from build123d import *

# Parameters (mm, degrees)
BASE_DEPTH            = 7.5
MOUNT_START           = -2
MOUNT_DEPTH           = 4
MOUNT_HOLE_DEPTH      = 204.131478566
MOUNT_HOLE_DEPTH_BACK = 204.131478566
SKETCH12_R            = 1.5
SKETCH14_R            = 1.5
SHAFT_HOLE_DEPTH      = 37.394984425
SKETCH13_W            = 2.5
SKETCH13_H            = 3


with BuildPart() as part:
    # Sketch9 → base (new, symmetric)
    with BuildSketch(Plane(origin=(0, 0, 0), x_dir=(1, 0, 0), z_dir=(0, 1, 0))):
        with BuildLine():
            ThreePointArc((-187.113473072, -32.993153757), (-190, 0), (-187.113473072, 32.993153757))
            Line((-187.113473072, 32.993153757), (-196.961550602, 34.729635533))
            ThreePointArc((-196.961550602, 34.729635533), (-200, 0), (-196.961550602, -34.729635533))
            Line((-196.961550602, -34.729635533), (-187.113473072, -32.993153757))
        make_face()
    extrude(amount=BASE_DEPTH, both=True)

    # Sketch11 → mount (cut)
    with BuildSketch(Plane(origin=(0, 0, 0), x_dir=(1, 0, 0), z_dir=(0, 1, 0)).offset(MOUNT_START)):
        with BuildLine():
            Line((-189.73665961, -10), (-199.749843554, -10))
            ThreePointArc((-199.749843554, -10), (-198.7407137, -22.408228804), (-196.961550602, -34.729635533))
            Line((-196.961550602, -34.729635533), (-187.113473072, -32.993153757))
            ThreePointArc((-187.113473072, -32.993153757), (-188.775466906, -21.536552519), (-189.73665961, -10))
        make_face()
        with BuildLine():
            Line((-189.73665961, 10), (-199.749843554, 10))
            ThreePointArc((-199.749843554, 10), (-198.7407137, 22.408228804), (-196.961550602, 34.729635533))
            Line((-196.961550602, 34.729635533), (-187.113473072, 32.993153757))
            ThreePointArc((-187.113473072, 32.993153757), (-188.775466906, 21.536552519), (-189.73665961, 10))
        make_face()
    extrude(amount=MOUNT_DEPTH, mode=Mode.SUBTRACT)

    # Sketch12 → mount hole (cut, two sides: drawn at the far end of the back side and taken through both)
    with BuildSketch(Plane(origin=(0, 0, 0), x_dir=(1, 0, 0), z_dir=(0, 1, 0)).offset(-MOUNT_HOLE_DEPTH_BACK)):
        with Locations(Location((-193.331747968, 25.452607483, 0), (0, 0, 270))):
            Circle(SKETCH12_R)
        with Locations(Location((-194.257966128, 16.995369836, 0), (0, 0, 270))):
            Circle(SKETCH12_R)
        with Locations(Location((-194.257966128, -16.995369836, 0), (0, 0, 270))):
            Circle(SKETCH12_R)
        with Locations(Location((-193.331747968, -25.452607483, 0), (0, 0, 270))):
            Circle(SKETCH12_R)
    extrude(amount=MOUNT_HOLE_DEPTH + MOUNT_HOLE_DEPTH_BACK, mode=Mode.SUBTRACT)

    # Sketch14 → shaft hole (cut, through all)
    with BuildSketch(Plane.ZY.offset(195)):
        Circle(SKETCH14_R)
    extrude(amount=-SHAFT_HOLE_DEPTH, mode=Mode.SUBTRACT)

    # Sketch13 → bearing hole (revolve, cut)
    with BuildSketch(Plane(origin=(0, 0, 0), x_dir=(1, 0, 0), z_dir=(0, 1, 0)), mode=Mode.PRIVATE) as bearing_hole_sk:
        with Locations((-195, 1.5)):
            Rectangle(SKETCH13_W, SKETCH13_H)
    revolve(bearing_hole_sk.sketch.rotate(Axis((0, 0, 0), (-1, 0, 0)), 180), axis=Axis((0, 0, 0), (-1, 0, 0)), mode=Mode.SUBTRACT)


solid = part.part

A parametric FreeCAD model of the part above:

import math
import FreeCAD as App
import Part
import Sketcher
from FreeCAD import Vector
Q = App.Units.Quantity


def add_polygon(sketch, points):
    """Adds a closed chain of lines whose ends are joined by coincident constraints."""
    first, n = sketch.GeometryCount, len(points)
    for a, b in zip(points, points[1:] + points[:1]):
        sketch.addGeometry(Part.LineSegment(App.Vector(*a, 0), App.Vector(*b, 0)), False)
    for i in range(n):
        sketch.addConstraint(Sketcher.Constraint("Coincident", first + i, 2, first + (i + 1) % n, 1))

doc = App.newDocument("Part")
body = doc.addObject("PartDesign::Body", "Body")

# Sketch on XZ plane
sketch1 = doc.addObject("Sketcher::SketchObject", "Sketch")
body.addObject(sketch1)
sketch1.AttachmentSupport = (doc.XZ_Plane, [""])
sketch1.MapMode = "FlatFace"
sketch1.addGeometry(Part.ArcOfCircle(Part.Circle(Vector(0, 0, 0), Vector(0, 0, 1), 190), math.radians(170), math.radians(190)), False)
sketch1.addGeometry(Part.LineSegment(Vector(-187, -33, 0), Vector(-197, -35, 0)), False)
sketch1.addGeometry(Part.ArcOfCircle(Part.Circle(Vector(0, 0, 0), Vector(0, 0, 1), 200), math.radians(170), math.radians(190)), False)
sketch1.addGeometry(Part.LineSegment(Vector(-197, 35, 0), Vector(-187, 33, 0)), False)
sketch1.addConstraint(Sketcher.Constraint("Coincident", 0, 2, 1, 1))
sketch1.addConstraint(Sketcher.Constraint("Coincident", 1, 2, 2, 2))
sketch1.addConstraint(Sketcher.Constraint("Coincident", 2, 1, 3, 1))
sketch1.addConstraint(Sketcher.Constraint("Coincident", 3, 2, 0, 1))
sketch1.addConstraint(Sketcher.Constraint("Coincident", 0, 3, -1, 1))
sketch1.addConstraint(Sketcher.Constraint("Coincident", 2, 3, -1, 1))
sketch1.addConstraint(Sketcher.Constraint("Vertical", 1, 2, 2, 1))
sketch1.addConstraint(Sketcher.Constraint("Vertical", 0, 2, 3, 2))
sketch1.addConstraint(Sketcher.Constraint("Radius", 0, Q("190 mm")))
sketch1.addConstraint(Sketcher.Constraint("Radius", 2, Q("200 mm")))
sketch1.addConstraint(Sketcher.Constraint("Angle", 1, Q("-170 deg")))
sketch1.addConstraint(Sketcher.Constraint("DistanceX", 1, 2, -1, 1, Q("196.961551 mm")))
pad1 = doc.addObject("PartDesign::Pad", "Pad")
body.addObject(pad1)
pad1.Profile = sketch1
pad1.Length = 15
pad1.Midplane = True

# Sketch on XZ plane
sketch2 = doc.addObject("Sketcher::SketchObject", "Sketch001")
body.addObject(sketch2)
sketch2.AttachmentSupport = (doc.XZ_Plane, [""])
sketch2.MapMode = "FlatFace"
sketch2.AttachmentOffset = App.Placement(Vector(0, 0, 2), App.Rotation())
sketch2.addGeometry(Part.LineSegment(Vector(-190, 10, 0), Vector(-200, 10, 0)), False)
sketch2.addGeometry(Part.ArcOfCircle(Part.Circle(Vector(0, 0, 0), Vector(0, 0, 1), 200), math.radians(170), math.radians(177.13)), False)
sketch2.addGeometry(Part.LineSegment(Vector(-197, 35, 0), Vector(-187, 33, 0)), False)
sketch2.addGeometry(Part.ArcOfCircle(Part.Circle(Vector(0, 0, 0), Vector(0, 0, 1), 190), math.radians(170), math.radians(176.98)), False)
sketch2.addGeometry(Part.LineSegment(Vector(-200, -10, 0), Vector(-190, -10, 0)), False)
sketch2.addGeometry(Part.ArcOfCircle(Part.Circle(Vector(0, 0, 0), Vector(0, 0, 1), 190), math.radians(-176.98), math.radians(-170)), False)
sketch2.addGeometry(Part.LineSegment(Vector(-187, -33, 0), Vector(-197, -35, 0)), False)
sketch2.addGeometry(Part.ArcOfCircle(Part.Circle(Vector(0, 0, 0), Vector(0, 0, 1), 200), math.radians(-177.13), math.radians(-170)), False)
sketch2.addConstraint(Sketcher.Constraint("Coincident", 0, 2, 1, 2))
sketch2.addConstraint(Sketcher.Constraint("Coincident", 1, 1, 2, 1))
sketch2.addConstraint(Sketcher.Constraint("Coincident", 2, 2, 3, 1))
sketch2.addConstraint(Sketcher.Constraint("Coincident", 3, 2, 0, 1))
sketch2.addConstraint(Sketcher.Constraint("Coincident", 4, 2, 5, 1))
sketch2.addConstraint(Sketcher.Constraint("Coincident", 5, 2, 6, 1))
sketch2.addConstraint(Sketcher.Constraint("Coincident", 6, 2, 7, 2))
sketch2.addConstraint(Sketcher.Constraint("Coincident", 7, 1, 4, 1))
sketch2.addConstraint(Sketcher.Constraint("Horizontal", 0))
sketch2.addConstraint(Sketcher.Constraint("Horizontal", 4))
sketch2.addConstraint(Sketcher.Constraint("Coincident", 1, 3, -1, 1))
sketch2.addConstraint(Sketcher.Constraint("Coincident", 3, 3, -1, 1))
sketch2.addConstraint(Sketcher.Constraint("Coincident", 5, 3, -1, 1))
sketch2.addConstraint(Sketcher.Constraint("Coincident", 7, 3, -1, 1))
sketch2.addConstraint(Sketcher.Constraint("Equal", 3, 5))
sketch2.addConstraint(Sketcher.Constraint("Equal", 1, 7))
sketch2.addConstraint(Sketcher.Constraint("Vertical", 3, 2, 4, 2))
sketch2.addConstraint(Sketcher.Constraint("Vertical", 2, 2, 5, 2))
sketch2.addConstraint(Sketcher.Constraint("Vertical", 1, 1, 6, 2))
sketch2.addConstraint(Sketcher.Constraint("Radius", 1, Q("200 mm")))
sketch2.addConstraint(Sketcher.Constraint("Radius", 3, Q("190 mm")))
sketch2.addConstraint(Sketcher.Constraint("Angle", 2, Q("-10 deg")))
sketch2.addConstraint(Sketcher.Constraint("DistanceY", -1, 1, 0, 2, Q("10 mm")))
sketch2.addConstraint(Sketcher.Constraint("DistanceX", 1, 1, -1, 1, Q("196.961551 mm")))
pocket1 = doc.addObject("PartDesign::Pocket", "Pocket")
body.addObject(pocket1)
pocket1.Profile = sketch2
pocket1.Length = 4

# Sketch on XZ plane
sketch3 = doc.addObject("Sketcher::SketchObject", "Sketch002")
body.addObject(sketch3)
sketch3.AttachmentSupport = (doc.XZ_Plane, [""])
sketch3.MapMode = "FlatFace"
sketch3.addGeometry(Part.Circle(Vector(-193.3, -25.5, 0), Vector(0, 0, 1), 1.5), False)
sketch3.addGeometry(Part.Circle(Vector(-194.3, -17, 0), Vector(0, 0, 1), 1.5), False)
sketch3.addGeometry(Part.Circle(Vector(-194.3, 17, 0), Vector(0, 0, 1), 1.5), False)
sketch3.addGeometry(Part.Circle(Vector(-193.3, 25.5, 0), Vector(0, 0, 1), 1.5), False)
sketch3.addConstraint(Sketcher.Constraint("Equal", 0, 1))
sketch3.addConstraint(Sketcher.Constraint("Equal", 1, 2))
sketch3.addConstraint(Sketcher.Constraint("Equal", 2, 3))
sketch3.addConstraint(Sketcher.Constraint("Symmetric", 1, 3, 2, 3, -1))
sketch3.addConstraint(Sketcher.Constraint("Symmetric", 0, 3, 3, 3, -1))
sketch3.addConstraint(Sketcher.Constraint("Diameter", 0, Q("3 mm")))
sketch3.addConstraint(Sketcher.Constraint("DistanceY", 1, 3, -1, 1, Q("16.99537 mm")))
sketch3.addConstraint(Sketcher.Constraint("DistanceX", 1, 3, 0, 3, Q("0.926218 mm")))
sketch3.addConstraint(Sketcher.Constraint("DistanceX", 0, 3, -1, 1, Q("193.331748 mm")))
sketch3.addConstraint(Sketcher.Constraint("DistanceY", 0, 3, -1, 1, Q("25.452607 mm")))
pocket2 = doc.addObject("PartDesign::Pocket", "Pocket001")
body.addObject(pocket2)
pocket2.Profile = sketch3
pocket2.Type = "ThroughAll"
pocket2.Midplane = True

# Sketch on YZ plane
sketch4 = doc.addObject("Sketcher::SketchObject", "Sketch003")
body.addObject(sketch4)
sketch4.AttachmentSupport = (doc.YZ_Plane, [""])
sketch4.MapMode = "FlatFace"
sketch4.AttachmentOffset = App.Placement(Vector(0, 0, -195), App.Rotation())
sketch4.addGeometry(Part.Circle(Vector(0, 0, 0), Vector(0, 0, 1), 1.5), False)
sketch4.addConstraint(Sketcher.Constraint("Coincident", 0, 3, -1, 1))
sketch4.addConstraint(Sketcher.Constraint("Diameter", 0, Q("3 mm")))
pocket3 = doc.addObject("PartDesign::Pocket", "Pocket002")
body.addObject(pocket3)
pocket3.Profile = sketch4
pocket3.Type = "ThroughAll"
pocket3.Reversed = True

# Sketch on XZ plane
sketch5 = doc.addObject("Sketcher::SketchObject", "Sketch004")
body.addObject(sketch5)
sketch5.AttachmentSupport = (doc.XZ_Plane, [""])
sketch5.MapMode = "FlatFace"
add_polygon(sketch5, [(-196.2, -3), (-196.2, 0), (-193.8, 0), (-193.8, -3)])  # lines 0-3
sketch5.addConstraint(Sketcher.Constraint("Vertical", 0))
sketch5.addConstraint(Sketcher.Constraint("Horizontal", 1))
sketch5.addConstraint(Sketcher.Constraint("Vertical", 2))
sketch5.addConstraint(Sketcher.Constraint("Horizontal", 3))
sketch5.addConstraint(Sketcher.Constraint("PointOnObject", 0, 2, -1))
sketch5.addConstraint(Sketcher.Constraint("DistanceY", 0, 1, 0, 2, Q("3 mm")))
sketch5.addConstraint(Sketcher.Constraint("DistanceX", 1, 1, 1, 2, Q("2.5 mm")))
sketch5.addConstraint(Sketcher.Constraint("DistanceX", 0, 2, -1, 1, Q("196.25 mm")))
groove = doc.addObject("PartDesign::Groove", "Groove")
body.addObject(groove)
groove.Profile = sketch5
groove.ReferenceAxis = (sketch5, ["H_Axis"])
groove.Angle = 360

doc.recompute()
